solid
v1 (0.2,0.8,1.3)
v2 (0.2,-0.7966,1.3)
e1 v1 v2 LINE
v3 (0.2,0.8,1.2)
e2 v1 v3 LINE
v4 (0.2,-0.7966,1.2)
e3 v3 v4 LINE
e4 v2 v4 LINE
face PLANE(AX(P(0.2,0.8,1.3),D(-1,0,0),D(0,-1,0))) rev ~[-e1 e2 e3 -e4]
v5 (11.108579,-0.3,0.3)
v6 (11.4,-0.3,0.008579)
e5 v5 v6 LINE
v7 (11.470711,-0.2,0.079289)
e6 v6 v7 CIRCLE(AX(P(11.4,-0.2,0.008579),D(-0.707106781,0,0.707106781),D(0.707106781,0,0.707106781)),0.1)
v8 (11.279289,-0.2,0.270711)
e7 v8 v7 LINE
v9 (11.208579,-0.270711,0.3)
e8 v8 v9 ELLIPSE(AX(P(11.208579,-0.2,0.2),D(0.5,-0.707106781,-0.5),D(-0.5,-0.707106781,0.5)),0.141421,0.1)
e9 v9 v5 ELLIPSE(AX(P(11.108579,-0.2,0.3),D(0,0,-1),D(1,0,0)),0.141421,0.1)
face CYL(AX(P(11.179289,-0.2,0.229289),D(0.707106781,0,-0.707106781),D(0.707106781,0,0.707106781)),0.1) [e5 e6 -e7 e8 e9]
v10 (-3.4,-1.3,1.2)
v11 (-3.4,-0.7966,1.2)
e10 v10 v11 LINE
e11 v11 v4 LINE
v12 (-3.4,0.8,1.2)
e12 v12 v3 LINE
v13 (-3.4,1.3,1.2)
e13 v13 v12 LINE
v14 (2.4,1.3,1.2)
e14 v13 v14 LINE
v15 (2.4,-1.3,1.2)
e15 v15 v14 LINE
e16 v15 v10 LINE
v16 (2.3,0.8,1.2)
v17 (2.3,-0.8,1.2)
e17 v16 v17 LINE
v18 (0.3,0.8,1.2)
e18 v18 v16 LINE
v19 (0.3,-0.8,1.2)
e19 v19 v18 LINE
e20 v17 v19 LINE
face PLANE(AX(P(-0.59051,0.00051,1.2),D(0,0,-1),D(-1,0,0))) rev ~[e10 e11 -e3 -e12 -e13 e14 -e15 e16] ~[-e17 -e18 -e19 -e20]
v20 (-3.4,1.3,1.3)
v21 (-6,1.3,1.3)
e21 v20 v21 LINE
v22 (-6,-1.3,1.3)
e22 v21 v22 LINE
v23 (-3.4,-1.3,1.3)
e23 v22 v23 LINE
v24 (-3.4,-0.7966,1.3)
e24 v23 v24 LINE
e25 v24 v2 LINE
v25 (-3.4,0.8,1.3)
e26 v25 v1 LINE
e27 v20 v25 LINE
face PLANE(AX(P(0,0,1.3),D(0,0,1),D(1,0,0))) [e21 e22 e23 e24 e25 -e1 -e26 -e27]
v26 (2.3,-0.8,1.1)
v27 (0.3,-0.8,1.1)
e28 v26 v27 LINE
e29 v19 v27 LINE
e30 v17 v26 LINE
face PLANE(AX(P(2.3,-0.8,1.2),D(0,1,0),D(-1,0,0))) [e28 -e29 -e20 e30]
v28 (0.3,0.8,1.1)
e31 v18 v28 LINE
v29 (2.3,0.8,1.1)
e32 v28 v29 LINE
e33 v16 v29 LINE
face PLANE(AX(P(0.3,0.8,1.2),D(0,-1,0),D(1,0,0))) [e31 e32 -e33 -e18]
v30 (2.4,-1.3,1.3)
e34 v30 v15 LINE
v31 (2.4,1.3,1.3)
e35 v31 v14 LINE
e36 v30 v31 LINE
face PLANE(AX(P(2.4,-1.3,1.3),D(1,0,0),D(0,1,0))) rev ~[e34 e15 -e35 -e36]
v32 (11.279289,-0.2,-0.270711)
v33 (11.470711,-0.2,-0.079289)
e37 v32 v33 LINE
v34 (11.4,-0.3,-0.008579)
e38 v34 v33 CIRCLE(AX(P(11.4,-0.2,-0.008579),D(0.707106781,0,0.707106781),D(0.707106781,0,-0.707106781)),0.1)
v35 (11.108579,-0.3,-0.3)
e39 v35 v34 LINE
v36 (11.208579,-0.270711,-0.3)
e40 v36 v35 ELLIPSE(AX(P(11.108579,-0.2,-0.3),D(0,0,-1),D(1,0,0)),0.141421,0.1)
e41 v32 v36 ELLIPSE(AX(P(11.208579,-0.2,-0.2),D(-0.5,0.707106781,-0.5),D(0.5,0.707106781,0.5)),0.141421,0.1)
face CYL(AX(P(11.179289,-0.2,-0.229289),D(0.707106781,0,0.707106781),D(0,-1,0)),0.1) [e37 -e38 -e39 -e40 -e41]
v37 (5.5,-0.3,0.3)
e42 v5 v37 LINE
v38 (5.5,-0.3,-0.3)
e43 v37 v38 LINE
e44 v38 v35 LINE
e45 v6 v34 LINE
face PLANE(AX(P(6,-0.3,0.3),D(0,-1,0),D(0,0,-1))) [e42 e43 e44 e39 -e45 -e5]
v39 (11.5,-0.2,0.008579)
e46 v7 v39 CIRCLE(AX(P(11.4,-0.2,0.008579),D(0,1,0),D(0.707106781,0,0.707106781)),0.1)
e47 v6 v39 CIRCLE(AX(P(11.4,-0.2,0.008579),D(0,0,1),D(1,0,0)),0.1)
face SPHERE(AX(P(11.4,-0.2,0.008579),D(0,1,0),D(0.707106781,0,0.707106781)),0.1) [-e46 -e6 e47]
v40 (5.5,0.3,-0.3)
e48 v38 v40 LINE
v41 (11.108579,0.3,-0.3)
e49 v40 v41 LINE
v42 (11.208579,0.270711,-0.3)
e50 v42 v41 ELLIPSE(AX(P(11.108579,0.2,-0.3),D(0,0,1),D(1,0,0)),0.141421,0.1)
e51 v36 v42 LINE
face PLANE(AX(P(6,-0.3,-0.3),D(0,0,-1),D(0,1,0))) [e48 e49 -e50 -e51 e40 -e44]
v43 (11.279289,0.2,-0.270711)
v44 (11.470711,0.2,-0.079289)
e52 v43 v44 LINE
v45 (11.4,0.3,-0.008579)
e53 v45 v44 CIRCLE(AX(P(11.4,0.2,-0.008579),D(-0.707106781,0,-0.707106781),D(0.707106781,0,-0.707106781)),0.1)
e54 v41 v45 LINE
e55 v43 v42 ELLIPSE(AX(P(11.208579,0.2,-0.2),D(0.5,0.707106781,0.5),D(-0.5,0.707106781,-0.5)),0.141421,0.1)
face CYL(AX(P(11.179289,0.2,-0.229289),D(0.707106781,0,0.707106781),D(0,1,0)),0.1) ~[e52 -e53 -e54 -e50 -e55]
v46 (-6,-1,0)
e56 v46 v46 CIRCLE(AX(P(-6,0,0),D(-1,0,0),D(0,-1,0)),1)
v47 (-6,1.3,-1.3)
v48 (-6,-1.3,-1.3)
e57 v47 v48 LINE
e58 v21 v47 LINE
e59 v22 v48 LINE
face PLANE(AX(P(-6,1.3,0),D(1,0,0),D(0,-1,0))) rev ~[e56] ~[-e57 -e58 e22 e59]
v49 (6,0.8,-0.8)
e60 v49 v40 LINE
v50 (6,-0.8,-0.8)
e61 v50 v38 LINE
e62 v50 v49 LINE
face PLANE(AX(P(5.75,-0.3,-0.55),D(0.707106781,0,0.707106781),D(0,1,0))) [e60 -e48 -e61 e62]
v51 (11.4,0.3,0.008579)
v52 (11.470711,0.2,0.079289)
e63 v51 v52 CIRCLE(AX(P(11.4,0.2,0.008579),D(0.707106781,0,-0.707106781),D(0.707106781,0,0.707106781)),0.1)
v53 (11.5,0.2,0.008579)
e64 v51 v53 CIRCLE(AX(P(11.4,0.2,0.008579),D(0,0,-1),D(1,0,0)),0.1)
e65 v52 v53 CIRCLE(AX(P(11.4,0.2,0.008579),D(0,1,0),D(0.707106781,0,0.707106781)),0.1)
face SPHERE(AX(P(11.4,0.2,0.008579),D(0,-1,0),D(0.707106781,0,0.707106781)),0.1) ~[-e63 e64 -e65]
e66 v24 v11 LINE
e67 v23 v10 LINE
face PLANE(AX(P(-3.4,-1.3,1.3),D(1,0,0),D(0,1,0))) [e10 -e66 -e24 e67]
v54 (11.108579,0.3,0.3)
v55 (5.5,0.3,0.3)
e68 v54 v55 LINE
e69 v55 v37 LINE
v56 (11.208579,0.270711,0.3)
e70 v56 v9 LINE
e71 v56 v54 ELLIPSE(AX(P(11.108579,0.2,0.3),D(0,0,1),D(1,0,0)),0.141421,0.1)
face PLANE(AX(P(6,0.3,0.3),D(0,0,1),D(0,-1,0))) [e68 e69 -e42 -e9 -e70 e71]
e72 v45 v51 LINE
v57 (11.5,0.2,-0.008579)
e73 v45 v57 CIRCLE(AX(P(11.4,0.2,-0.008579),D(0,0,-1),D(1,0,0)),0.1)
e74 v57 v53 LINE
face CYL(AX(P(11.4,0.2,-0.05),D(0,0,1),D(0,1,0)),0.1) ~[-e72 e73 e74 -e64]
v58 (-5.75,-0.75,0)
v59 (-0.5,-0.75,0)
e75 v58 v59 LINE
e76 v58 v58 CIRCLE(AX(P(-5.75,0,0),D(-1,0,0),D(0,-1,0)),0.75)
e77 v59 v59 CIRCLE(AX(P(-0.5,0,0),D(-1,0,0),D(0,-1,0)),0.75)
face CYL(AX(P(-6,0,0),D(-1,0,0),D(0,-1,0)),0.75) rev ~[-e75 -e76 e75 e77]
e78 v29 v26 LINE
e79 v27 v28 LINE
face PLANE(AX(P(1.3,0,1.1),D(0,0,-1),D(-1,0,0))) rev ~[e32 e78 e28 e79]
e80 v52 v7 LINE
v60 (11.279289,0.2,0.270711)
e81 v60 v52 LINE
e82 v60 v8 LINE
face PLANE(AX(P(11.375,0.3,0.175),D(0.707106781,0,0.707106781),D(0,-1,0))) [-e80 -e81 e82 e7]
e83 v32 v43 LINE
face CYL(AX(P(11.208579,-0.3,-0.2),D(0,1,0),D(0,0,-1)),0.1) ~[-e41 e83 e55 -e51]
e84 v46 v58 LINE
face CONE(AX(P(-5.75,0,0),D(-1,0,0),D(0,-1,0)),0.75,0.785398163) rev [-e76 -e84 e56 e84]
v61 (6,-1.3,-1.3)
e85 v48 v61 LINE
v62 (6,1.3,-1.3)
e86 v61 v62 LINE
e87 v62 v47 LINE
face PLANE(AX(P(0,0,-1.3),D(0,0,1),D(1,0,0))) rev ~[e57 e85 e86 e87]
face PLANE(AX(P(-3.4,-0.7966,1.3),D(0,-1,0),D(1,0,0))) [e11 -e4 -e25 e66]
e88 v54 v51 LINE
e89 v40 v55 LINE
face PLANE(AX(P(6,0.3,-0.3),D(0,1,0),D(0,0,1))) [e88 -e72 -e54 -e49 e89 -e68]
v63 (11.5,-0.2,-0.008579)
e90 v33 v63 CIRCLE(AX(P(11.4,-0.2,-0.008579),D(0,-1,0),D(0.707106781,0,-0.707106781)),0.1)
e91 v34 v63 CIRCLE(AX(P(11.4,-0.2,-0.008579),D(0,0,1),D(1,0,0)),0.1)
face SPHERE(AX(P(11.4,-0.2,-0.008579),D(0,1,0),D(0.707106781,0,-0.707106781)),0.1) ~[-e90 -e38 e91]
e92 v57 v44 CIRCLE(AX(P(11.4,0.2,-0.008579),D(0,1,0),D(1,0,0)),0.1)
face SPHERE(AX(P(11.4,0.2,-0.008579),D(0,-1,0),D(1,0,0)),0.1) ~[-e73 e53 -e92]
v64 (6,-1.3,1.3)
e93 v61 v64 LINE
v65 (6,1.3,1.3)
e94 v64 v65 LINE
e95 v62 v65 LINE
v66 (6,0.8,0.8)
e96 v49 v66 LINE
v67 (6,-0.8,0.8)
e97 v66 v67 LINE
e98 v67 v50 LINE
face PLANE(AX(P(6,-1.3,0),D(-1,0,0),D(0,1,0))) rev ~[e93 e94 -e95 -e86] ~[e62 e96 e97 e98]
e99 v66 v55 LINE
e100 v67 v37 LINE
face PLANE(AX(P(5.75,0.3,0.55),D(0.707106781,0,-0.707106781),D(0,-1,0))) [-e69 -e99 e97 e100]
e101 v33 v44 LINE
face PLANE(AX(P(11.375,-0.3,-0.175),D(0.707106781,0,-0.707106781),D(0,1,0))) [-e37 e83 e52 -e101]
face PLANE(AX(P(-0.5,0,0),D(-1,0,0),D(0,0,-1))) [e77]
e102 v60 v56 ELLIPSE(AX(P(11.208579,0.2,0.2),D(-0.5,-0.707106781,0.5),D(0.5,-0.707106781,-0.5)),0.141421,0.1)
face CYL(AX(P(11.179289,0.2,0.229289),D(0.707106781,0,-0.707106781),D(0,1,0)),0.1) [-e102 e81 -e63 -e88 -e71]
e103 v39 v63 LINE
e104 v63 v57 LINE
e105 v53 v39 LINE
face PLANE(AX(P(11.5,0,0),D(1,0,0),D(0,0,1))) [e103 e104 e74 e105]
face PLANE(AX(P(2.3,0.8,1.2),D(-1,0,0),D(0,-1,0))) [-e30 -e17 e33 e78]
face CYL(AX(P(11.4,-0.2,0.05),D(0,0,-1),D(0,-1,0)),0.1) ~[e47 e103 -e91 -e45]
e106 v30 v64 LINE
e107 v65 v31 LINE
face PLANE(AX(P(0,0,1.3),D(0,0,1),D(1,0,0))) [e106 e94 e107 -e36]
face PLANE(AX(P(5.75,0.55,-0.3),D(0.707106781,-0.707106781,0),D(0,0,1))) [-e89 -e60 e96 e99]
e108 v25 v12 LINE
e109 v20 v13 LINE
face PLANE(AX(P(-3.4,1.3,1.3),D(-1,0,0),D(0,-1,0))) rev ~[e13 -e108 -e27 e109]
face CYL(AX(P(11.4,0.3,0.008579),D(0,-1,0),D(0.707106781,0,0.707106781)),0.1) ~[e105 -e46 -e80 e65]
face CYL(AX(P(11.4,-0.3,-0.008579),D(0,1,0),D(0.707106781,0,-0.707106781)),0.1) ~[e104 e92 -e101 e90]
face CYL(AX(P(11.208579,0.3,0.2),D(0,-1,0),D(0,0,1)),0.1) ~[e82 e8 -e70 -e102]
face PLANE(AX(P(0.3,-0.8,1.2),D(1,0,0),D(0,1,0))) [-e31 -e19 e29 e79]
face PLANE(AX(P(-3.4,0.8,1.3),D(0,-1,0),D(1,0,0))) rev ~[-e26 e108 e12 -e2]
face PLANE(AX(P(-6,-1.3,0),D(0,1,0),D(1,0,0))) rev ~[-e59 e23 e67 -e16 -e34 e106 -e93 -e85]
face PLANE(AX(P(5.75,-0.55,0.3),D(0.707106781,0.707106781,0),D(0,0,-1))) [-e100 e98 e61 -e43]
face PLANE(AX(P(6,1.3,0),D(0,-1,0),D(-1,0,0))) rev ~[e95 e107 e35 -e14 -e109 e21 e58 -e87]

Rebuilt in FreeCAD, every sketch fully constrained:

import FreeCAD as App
import Part
import Sketcher
from FreeCAD import Vector
Q = App.Units.Quantity


def edges_at(feature, points):
    """Names of the edges that pass closest to the given points."""
    edges = feature.Shape.Edges
    near = lambda p: min(range(len(edges)), key=lambda i: edges[i].distToShape(Part.Vertex(*p))[0])
    return sorted({f"Edge{near(p) + 1}" for p in points})


def add_polygon(sketch, points):
    """Adds a closed chain of lines whose ends are joined by coincident constraints."""
    first, n = sketch.GeometryCount, len(points)
    for a, b in zip(points, points[1:] + points[:1]):
        sketch.addGeometry(Part.LineSegment(App.Vector(*a, 0), App.Vector(*b, 0)), False)
    for i in range(n):
        sketch.addConstraint(Sketcher.Constraint("Coincident", first + i, 2, first + (i + 1) % n, 1))

doc = App.newDocument("Part")
body = doc.addObject("PartDesign::Body", "Body")

sketch1 = body.newObject("Sketcher::SketchObject", "Sketch")
sketch1.AttachmentSupport = (doc.getObject("XY_Plane"), [""])
sketch1.MapMode = "FlatFace"
add_polygon(sketch1, [(-6, 1.3), (-6, -1.3), (6, -1.3), (6, 1.3)])
sketch1.addConstraint([
    Sketcher.Constraint("Vertical", 0),
    Sketcher.Constraint("Horizontal", 1),
    Sketcher.Constraint("Vertical", 2),
    Sketcher.Constraint("Horizontal", 3),
    Sketcher.Constraint("Symmetric", 0, 2, 2, 2, -1, 1),
    Sketcher.Constraint("DistanceX", 0, 2, -1, 1, Q("6 mm")),
    Sketcher.Constraint("DistanceY", 0, 2, 0, 1, Q("2.6 mm")),
])
pad1 = body.newObject("PartDesign::Pad", "Pad")
pad1.Profile = sketch1
pad1.Length = 2.6
pad1.Midplane = True

sketch2 = body.newObject("Sketcher::SketchObject", "Sketch001")
sketch2.AttachmentSupport = (doc.getObject("YZ_Plane"), [""])
sketch2.MapMode = "FlatFace"
sketch2.AttachmentOffset = App.Placement(Vector(0, 0, 6), App.Rotation())
add_polygon(sketch2, [(-0.3, 0.3), (-0.3, -0.3), (0.3, -0.3), (0.3, 0.3)])
sketch2.addConstraint([
    Sketcher.Constraint("Vertical", 0),
    Sketcher.Constraint("Horizontal", 1),
    Sketcher.Constraint("Vertical", 2),
    Sketcher.Constraint("Horizontal", 3),
    Sketcher.Constraint("Symmetric", 0, 2, 2, 2, -1, 1),
    Sketcher.Constraint("Equal", 3, 0),
    Sketcher.Constraint("DistanceX", 0, 2, -1, 1, Q("0.3 mm")),
])
pocket1 = body.newObject("PartDesign::Pocket", "Pocket")
pocket1.Profile = sketch2
pocket1.Length = 5.5
doc.recompute()

chamfer = body.newObject("PartDesign::Chamfer", "Chamfer")
chamfer.Base = (pocket1, edges_at(pocket1, [
    (6, 0, 0.3),
    (6, 0.3, 0),
    (6, -0.3, 0),
    (6, 0, -0.3),
]))
chamfer.Size = 0.5

sketch3 = body.newObject("Sketcher::SketchObject", "Sketch002")
sketch3.AttachmentSupport = (doc.getObject("YZ_Plane"), [""])
sketch3.MapMode = "FlatFace"
sketch3.AttachmentOffset = App.Placement(Vector(0, 0, -6), App.Rotation())
sketch3.addGeometry(Part.Circle(Vector(0, 0, 0), Vector(0, 0, 1), 0.8), False)
sketch3.addConstraint([
    Sketcher.Constraint("Coincident", 0, 3, -1, 1),
    Sketcher.Constraint("Diameter", 0, Q("1.5 mm")),
])
pocket2 = body.newObject("PartDesign::Pocket", "Pocket001")
pocket2.Profile = sketch3
pocket2.Length = 5.5
pocket2.Reversed = True

sketch4 = body.newObject("Sketcher::SketchObject", "Sketch003")
sketch4.AttachmentSupport = (doc.getObject("XY_Plane"), [""])
sketch4.MapMode = "FlatFace"
sketch4.AttachmentOffset = App.Placement(Vector(0, 0, 1.3), App.Rotation())
add_polygon(sketch4, [(-3.4, -1.3), (2.4, -1.3), (2.4, 1.3), (-3.4, 1.3), (-3.4, 0.8), (0.2, 0.8), (0.2, -0.8), (-3.4, -0.8)])
sketch4.addConstraint([
    Sketcher.Constraint("Horizontal", 0),
    Sketcher.Constraint("Vertical", 1),
    Sketcher.Constraint("Horizontal", 2),
    Sketcher.Constraint("Vertical", 3),
    Sketcher.Constraint("Horizontal", 4),
    Sketcher.Constraint("Vertical", 5),
    Sketcher.Constraint("Horizontal", 6),
    Sketcher.Constraint("Vertical", 7),
    Sketcher.Constraint("Symmetric", 2, 2, 7, 2, -1),
    Sketcher.Constraint("DistanceX", -1, 1, 0, 2, Q("2.4 mm")),
    Sketcher.Constraint("DistanceX", 2, 2, -1, 1, Q("3.4 mm")),
    Sketcher.Constraint("DistanceX", -1, 1, 4, 2, Q("0.2 mm")),
    Sketcher.Constraint("DistanceY", 1, 1, 1, 2, Q("2.6 mm")),
    Sketcher.Constraint("DistanceY", 3, 2, 3, 1, Q("0.5 mm")),
    Sketcher.Constraint("DistanceY", 5, 2, 5, 1, Q("1.5966 mm")),
])
pocket3 = body.newObject("PartDesign::Pocket", "Pocket002")
pocket3.Profile = sketch4
pocket3.Length = 0.1

sketch5 = body.newObject("Sketcher::SketchObject", "Sketch004")
sketch5.AttachmentSupport = (doc.getObject("XY_Plane"), [""])
sketch5.MapMode = "FlatFace"
sketch5.AttachmentOffset = App.Placement(Vector(0, 0, 1.2), App.Rotation())
add_polygon(sketch5, [(2.3, 0.8), (0.3, 0.8), (0.3, -0.8), (2.3, -0.8)])
sketch5.addConstraint([
    Sketcher.Constraint("Horizontal", 0),
    Sketcher.Constraint("Vertical", 1),
    Sketcher.Constraint("Horizontal", 2),
    Sketcher.Constraint("Vertical", 3),
    Sketcher.Constraint("DistanceY", -1, 1, 0, 2, Q("0.8 mm")),
    Sketcher.Constraint("DistanceY", 1, 2, -1, 1, Q("0.8 mm")),
    Sketcher.Constraint("DistanceX", 0, 2, 0, 1, Q("2 mm")),
    Sketcher.Constraint("DistanceX", -1, 1, 0, 2, Q("0.3 mm")),
])
pocket4 = body.newObject("PartDesign::Pocket", "Pocket003")
pocket4.Profile = sketch5
pocket4.Length = 0.1

sketch6 = body.newObject("Sketcher::SketchObject", "Sketch005")
sketch6.AttachmentSupport = (doc.getObject("YZ_Plane"), [""])
sketch6.MapMode = "FlatFace"
sketch6.AttachmentOffset = App.Placement(Vector(0, 0, 6), App.Rotation())
add_polygon(sketch6, [(0.3, 0.3), (-0.3, 0.3), (-0.3, -0.3), (0.3, -0.3)])
sketch6.addConstraint([
    Sketcher.Constraint("Horizontal", 0),
    Sketcher.Constraint("Vertical", 1),
    Sketcher.Constraint("Horizontal", 2),
    Sketcher.Constraint("Vertical", 3),
    Sketcher.Constraint("Symmetric", 0, 2, 2, 2, -1, 1),
    Sketcher.Constraint("Equal", 2, 1),
    Sketcher.Constraint("DistanceX", 0, 2, 0, 1, Q("0.6 mm")),
])
pad2 = body.newObject("PartDesign::Pad", "Pad001")
pad2.Profile = sketch6
pad2.Type = "TwoLengths"
pad2.Length = 5.5
pad2.Length2 = 5.5
pad2.Reversed = True
doc.recompute()

chamfer2 = body.newObject("PartDesign::Chamfer", "Chamfer001")
chamfer2.Base = (pad2, edges_at(pad2, [(11.5, 0, 0.3), (11.5, 0, -0.3)]))
chamfer2.Size = 0.25
doc.recompute()

fillet = body.newObject("PartDesign::Fillet", "Fillet")
fillet.Base = (chamfer2, edges_at(chamfer2, [
    (11.5, 0, 0.05),
    (11.5, 0, -0.05),
    (11.25, 0, 0.3),
    (11.25, 0, -0.3),
    (11.375, -0.3, -0.175),
    (11.375, -0.3, 0.175),
    (11.5, -0.3, 0),
    (11.375, 0.3, 0.175),
    (11.5, 0.3, 0),
    (11.375, 0.3, -0.175),
]))
fillet.Radius = 0.1
doc.recompute()

chamfer3 = body.newObject("PartDesign::Chamfer", "Chamfer002")
chamfer3.Base = (fillet, edges_at(fillet, [(-6, 0.75, 0)]))
chamfer3.Size = 0.25

doc.recompute()
